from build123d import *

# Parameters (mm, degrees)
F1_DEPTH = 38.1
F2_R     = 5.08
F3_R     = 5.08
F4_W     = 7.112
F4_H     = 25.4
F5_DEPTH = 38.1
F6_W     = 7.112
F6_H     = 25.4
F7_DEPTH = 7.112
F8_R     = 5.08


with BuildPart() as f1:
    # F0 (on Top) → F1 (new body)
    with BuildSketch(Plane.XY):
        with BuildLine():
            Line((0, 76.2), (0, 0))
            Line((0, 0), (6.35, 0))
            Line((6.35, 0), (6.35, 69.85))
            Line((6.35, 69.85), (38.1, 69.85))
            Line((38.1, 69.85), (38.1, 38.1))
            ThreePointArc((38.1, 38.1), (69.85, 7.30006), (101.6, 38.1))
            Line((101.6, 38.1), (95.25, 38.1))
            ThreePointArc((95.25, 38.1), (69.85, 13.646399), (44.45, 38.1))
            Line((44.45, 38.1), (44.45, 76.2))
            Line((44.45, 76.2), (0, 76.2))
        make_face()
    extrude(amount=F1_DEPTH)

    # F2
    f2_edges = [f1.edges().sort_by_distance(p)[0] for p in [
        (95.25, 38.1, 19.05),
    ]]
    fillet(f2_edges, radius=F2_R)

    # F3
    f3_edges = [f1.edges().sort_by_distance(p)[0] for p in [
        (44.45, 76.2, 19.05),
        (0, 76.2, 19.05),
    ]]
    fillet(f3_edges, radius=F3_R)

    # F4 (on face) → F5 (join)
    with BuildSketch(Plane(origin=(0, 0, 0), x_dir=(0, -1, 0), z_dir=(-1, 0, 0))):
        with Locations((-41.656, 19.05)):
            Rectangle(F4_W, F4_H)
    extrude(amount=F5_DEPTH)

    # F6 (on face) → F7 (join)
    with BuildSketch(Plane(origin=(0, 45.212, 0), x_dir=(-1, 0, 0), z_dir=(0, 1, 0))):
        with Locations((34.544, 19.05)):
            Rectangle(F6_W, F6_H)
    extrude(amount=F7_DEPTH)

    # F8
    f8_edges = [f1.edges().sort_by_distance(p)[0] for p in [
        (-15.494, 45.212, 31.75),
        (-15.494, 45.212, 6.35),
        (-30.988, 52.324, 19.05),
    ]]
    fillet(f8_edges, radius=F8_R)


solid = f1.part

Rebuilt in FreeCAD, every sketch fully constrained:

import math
import FreeCAD as App
import Part
import Sketcher

V = App.Vector
Q = App.Units.Quantity


def edges_at(feature, points):
    """Names of the edges that pass closest to the given points."""
    edges = feature.Shape.Edges
    near = lambda p: min(range(len(edges)), key=lambda i: edges[i].distToShape(Part.Vertex(*p))[0])
    return sorted({f"Edge{near(p) + 1}" for p in points})

doc = App.newDocument("Part")
body = doc.addObject("PartDesign::Body", "Body")

# Sketch on XY plane
sketch1 = body.newObject("Sketcher::SketchObject", "Sketch")
sketch1.AttachmentSupport = (doc.getObject("XY_Plane"), [""])
sketch1.MapMode = "FlatFace"
sketch1.addGeometry(Part.LineSegment(V(0, 76, 0), V(0, 0, 0)), False)
sketch1.addGeometry(Part.LineSegment(V(0, 0, 0), V(6, 0, 0)), False)
sketch1.addGeometry(Part.LineSegment(V(6, 0, 0), V(6, 70, 0)), False)
sketch1.addGeometry(Part.LineSegment(V(6, 70, 0), V(38, 70, 0)), False)
sketch1.addGeometry(Part.LineSegment(V(38, 70, 0), V(38, 38, 0)), False)
sketch1.addGeometry(Part.ArcOfCircle(Part.Circle(V(70, 39, 0), V(0, 0, 1), 32), math.radians(-178), math.radians(-2)), False)
sketch1.addGeometry(Part.LineSegment(V(102, 38, 0), V(95, 38, 0)), False)
sketch1.addGeometry(Part.ArcOfCircle(Part.Circle(V(70, 39, 0), V(0, 0, 1), 25), math.radians(-178), math.radians(-2)), False)
sketch1.addGeometry(Part.LineSegment(V(44, 38, 0), V(44, 76, 0)), False)
sketch1.addGeometry(Part.LineSegment(V(44, 76, 0), V(0, 76, 0)), False)
sketch1.addConstraint(Sketcher.Constraint("Coincident", 0, 2, 1, 1))
sketch1.addConstraint(Sketcher.Constraint("Coincident", 1, 2, 2, 1))
sketch1.addConstraint(Sketcher.Constraint("Coincident", 2, 2, 3, 1))
sketch1.addConstraint(Sketcher.Constraint("Coincident", 3, 2, 4, 1))
sketch1.addConstraint(Sketcher.Constraint("Coincident", 4, 2, 5, 1))
sketch1.addConstraint(Sketcher.Constraint("Coincident", 5, 2, 6, 1))
sketch1.addConstraint(Sketcher.Constraint("Coincident", 6, 2, 7, 2))
sketch1.addConstraint(Sketcher.Constraint("Coincident", 7, 1, 8, 1))
sketch1.addConstraint(Sketcher.Constraint("Coincident", 8, 2, 9, 1))
sketch1.addConstraint(Sketcher.Constraint("Coincident", 9, 2, 0, 1))
sketch1.addConstraint(Sketcher.Constraint("Vertical", 0))
sketch1.addConstraint(Sketcher.Constraint("Horizontal", 1))
sketch1.addConstraint(Sketcher.Constraint("Vertical", 2))
sketch1.addConstraint(Sketcher.Constraint("Horizontal", 3))
sketch1.addConstraint(Sketcher.Constraint("Vertical", 4))
sketch1.addConstraint(Sketcher.Constraint("Horizontal", 6))
sketch1.addConstraint(Sketcher.Constraint("Vertical", 8))
sketch1.addConstraint(Sketcher.Constraint("Horizontal", 9))
sketch1.addConstraint(Sketcher.Constraint("Coincident", 0, 2, -1, 1))
sketch1.addConstraint(Sketcher.Constraint("Coincident", 7, 3, 5, 3))
sketch1.addConstraint(Sketcher.Constraint("Horizontal", 4, 2, 5, 2))
sketch1.addConstraint(Sketcher.Constraint("Horizontal", 6, 2, 7, 1))
sketch1.addConstraint(Sketcher.Constraint("Equal", 1, 6))
sketch1.addConstraint(Sketcher.Constraint("Equal", 3, 4))
sketch1.addConstraint(Sketcher.Constraint("DistanceY", 0, 2, 0, 1, Q("3 in")))
sketch1.addConstraint(Sketcher.Constraint("DistanceY", 8, 1, 8, 2, Q("1.5 in")))
sketch1.addConstraint(Sketcher.Constraint("DistanceX", -1, 1, 5, 2, Q("4 in")))
sketch1.addConstraint(Sketcher.Constraint("DistanceX", 7, 3, 6, 2, Q("1 in")))
sketch1.addConstraint(Sketcher.Constraint("DistanceX", 1, 1, 1, 2, Q("0.25 in")))
sketch1.addConstraint(Sketcher.Constraint("Radius", 5, 31.764653))
pad1 = body.newObject("PartDesign::Pad", "Pad")
pad1.Profile = sketch1
pad1.Length = Q("1.5 in")
doc.recompute()

fillet = body.newObject("PartDesign::Fillet", "Fillet")
fillet.Base = (pad1, edges_at(pad1, [(95.25, 38.1, 19.05)]))
fillet.Radius = Q("0.2 in")
doc.recompute()

fillet2 = body.newObject("PartDesign::Fillet", "Fillet001")
fillet2.Base = (fillet, edges_at(fillet, [(44.45, 76.2, 19.05), (0, 76.2, 19.05)]))
fillet2.Radius = Q("0.2 in")

# Sketch on YZ plane
sketch2 = body.newObject("Sketcher::SketchObject", "Sketch001")
sketch2.AttachmentSupport = (doc.getObject("YZ_Plane"), [""])
sketch2.MapMode = "FlatFace"
sketch2.addGeometry(Part.LineSegment(V(45, 32, 0), V(45, 6, 0)), False)
sketch2.addGeometry(Part.LineSegment(V(45, 6, 0), V(38, 6, 0)), False)
sketch2.addGeometry(Part.LineSegment(V(38, 6, 0), V(38, 32, 0)), False)
sketch2.addGeometry(Part.LineSegment(V(38, 32, 0), V(45, 32, 0)), False)
sketch2.addConstraint(Sketcher.Constraint("Coincident", 0, 2, 1, 1))
sketch2.addConstraint(Sketcher.Constraint("Coincident", 1, 2, 2, 1))
sketch2.addConstraint(Sketcher.Constraint("Coincident", 2, 2, 3, 1))
sketch2.addConstraint(Sketcher.Constraint("Coincident", 3, 2, 0, 1))
sketch2.addConstraint(Sketcher.Constraint("Vertical", 0))
sketch2.addConstraint(Sketcher.Constraint("Horizontal", 1))
sketch2.addConstraint(Sketcher.Constraint("Vertical", 2))
sketch2.addConstraint(Sketcher.Constraint("Horizontal", 3))
sketch2.addConstraint(Sketcher.Constraint("DistanceY", 0, 2, 0, 1, Q("1 in")))
sketch2.addConstraint(Sketcher.Constraint("DistanceX", 1, 2, 1, 1, Q("0.28 in")))
sketch2.addConstraint(Sketcher.Constraint("DistanceX", -1, 1, 1, 2, Q("1.5 in")))
sketch2.addConstraint(Sketcher.Constraint("DistanceY", -1, 1, 0, 2, Q("0.25 in")))
pad2 = body.newObject("PartDesign::Pad", "Pad001")
pad2.Profile = sketch2
pad2.Length = Q("1.5 in")
pad2.Reversed = True

# Sketch on XZ plane
sketch3 = body.newObject("Sketcher::SketchObject", "Sketch002")
sketch3.AttachmentSupport = (doc.getObject("XZ_Plane"), [""])
sketch3.MapMode = "FlatFace"
sketch3.AttachmentOffset = App.Placement(V(0, 0, -1.78 * 25.4), App.Rotation())
sketch3.addGeometry(Part.LineSegment(V(-31, 32, 0), V(-31, 6, 0)), False)
sketch3.addGeometry(Part.LineSegment(V(-31, 6, 0), V(-38, 6, 0)), False)
sketch3.addGeometry(Part.LineSegment(V(-38, 6, 0), V(-38, 32, 0)), False)
sketch3.addGeometry(Part.LineSegment(V(-38, 32, 0), V(-31, 32, 0)), False)
sketch3.addConstraint(Sketcher.Constraint("Coincident", 0, 2, 1, 1))
sketch3.addConstraint(Sketcher.Constraint("Coincident", 1, 2, 2, 1))
sketch3.addConstraint(Sketcher.Constraint("Coincident", 2, 2, 3, 1))
sketch3.addConstraint(Sketcher.Constraint("Coincident", 3, 2, 0, 1))
sketch3.addConstraint(Sketcher.Constraint("Vertical", 0))
sketch3.addConstraint(Sketcher.Constraint("Horizontal", 1))
sketch3.addConstraint(Sketcher.Constraint("Vertical", 2))
sketch3.addConstraint(Sketcher.Constraint("Horizontal", 3))
sketch3.addConstraint(Sketcher.Constraint("DistanceY", 0, 2, 0, 1, Q("1 in")))
sketch3.addConstraint(Sketcher.Constraint("DistanceX", 1, 2, 1, 1, Q("0.28 in")))
sketch3.addConstraint(Sketcher.Constraint("DistanceX", 1, 2, -1, 1, Q("1.5 in")))
sketch3.addConstraint(Sketcher.Constraint("DistanceY", -1, 1, 0, 2, Q("0.25 in")))
pad3 = body.newObject("PartDesign::Pad", "Pad002")
pad3.Profile = sketch3
pad3.Length = Q("0.28 in")
pad3.Reversed = True
doc.recompute()

fillet3 = body.newObject("PartDesign::Fillet", "Fillet002")
fillet3.Base = (pad3, edges_at(pad3, [(-15.494, 45.212, 31.75), (-15.494, 45.212, 6.35), (-30.988, 52.324, 19.05)]))
fillet3.Radius = Q("0.2 in")

doc.recompute()
